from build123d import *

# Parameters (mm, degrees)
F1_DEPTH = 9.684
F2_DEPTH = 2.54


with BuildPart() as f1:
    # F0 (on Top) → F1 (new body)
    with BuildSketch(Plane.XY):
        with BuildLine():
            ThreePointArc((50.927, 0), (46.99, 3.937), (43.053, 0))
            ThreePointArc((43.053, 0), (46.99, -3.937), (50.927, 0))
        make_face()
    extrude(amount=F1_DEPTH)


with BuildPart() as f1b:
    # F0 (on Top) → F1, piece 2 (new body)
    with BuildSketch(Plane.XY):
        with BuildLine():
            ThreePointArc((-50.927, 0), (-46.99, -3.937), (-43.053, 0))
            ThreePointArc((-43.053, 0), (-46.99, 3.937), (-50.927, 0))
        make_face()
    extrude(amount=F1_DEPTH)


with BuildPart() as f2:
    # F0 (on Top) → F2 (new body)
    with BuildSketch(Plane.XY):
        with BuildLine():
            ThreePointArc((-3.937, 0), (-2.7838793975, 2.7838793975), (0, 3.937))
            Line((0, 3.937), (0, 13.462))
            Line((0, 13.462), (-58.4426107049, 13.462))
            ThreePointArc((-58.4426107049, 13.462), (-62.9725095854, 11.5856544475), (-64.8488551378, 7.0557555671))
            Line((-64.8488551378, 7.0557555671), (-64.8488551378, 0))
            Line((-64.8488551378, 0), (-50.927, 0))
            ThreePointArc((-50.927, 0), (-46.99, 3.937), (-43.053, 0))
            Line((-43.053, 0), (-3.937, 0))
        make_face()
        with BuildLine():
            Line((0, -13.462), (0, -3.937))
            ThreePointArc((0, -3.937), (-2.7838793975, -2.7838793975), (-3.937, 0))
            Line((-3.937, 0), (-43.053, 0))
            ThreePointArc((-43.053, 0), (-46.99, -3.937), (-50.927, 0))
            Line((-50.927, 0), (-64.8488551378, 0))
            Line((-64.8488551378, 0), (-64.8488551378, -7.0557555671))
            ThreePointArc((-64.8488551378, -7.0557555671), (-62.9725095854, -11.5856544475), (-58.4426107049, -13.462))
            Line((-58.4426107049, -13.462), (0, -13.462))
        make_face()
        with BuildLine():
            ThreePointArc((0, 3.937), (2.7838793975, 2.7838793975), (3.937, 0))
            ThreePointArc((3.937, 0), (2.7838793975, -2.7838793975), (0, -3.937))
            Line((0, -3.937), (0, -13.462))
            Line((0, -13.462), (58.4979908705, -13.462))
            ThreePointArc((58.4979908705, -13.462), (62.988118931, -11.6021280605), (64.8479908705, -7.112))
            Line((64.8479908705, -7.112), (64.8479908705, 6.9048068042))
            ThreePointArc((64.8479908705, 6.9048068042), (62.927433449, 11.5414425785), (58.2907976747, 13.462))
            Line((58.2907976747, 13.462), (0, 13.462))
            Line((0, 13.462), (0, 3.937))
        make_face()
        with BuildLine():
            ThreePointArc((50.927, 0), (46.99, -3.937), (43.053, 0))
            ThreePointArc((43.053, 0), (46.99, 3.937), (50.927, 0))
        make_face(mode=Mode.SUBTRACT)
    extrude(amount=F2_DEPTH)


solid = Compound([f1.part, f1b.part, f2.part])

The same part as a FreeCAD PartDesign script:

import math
import FreeCAD as App
import Part
import Sketcher

V = App.Vector
Q = App.Units.Quantity

doc = App.newDocument("Part")
body = doc.addObject("PartDesign::Body", "Body")

sketch1 = body.newObject("Sketcher::SketchObject", "Sketch")
sketch1.AttachmentSupport = (doc.getObject("XY_Plane"), [""])
sketch1.MapMode = "FlatFace"
sketch1.addGeometry(Part.Circle(V(47, 0, 0), V(0, 0, 1), 3.9), False)
sketch1.addConstraint([
    Sketcher.Constraint("PointOnObject", 0, 3, -1),
    Sketcher.Constraint("Diameter", 0, Q("0.31 in")),
    Sketcher.Constraint("DistanceX", -1, 1, 0, 3, Q("1.85 in")),
])
pad1 = body.newObject("PartDesign::Pad", "Pad")
pad1.Profile = sketch1
pad1.Length = 9.684
body2 = doc.addObject("PartDesign::Body", "Body001")

sketch2 = body2.newObject("Sketcher::SketchObject", "Sketch001")
sketch2.AttachmentSupport = (doc.getObject("XY_Plane001"), [""])
sketch2.MapMode = "FlatFace"
sketch2.addGeometry(Part.Circle(V(-47, 0, 0), V(0, 0, 1), 3.9), False)
sketch2.addConstraint([
    Sketcher.Constraint("PointOnObject", 0, 3, -1),
    Sketcher.Constraint("Diameter", 0, Q("0.31 in")),
    Sketcher.Constraint("DistanceX", 0, 3, -1, 1, Q("1.85 in")),
])
pad2 = body2.newObject("PartDesign::Pad", "Pad001")
pad2.Profile = sketch2
pad2.Length = 9.684
body3 = doc.addObject("PartDesign::Body", "Body002")

sketch3 = body3.newObject("Sketcher::SketchObject", "Sketch002")
sketch3.AttachmentSupport = (doc.getObject("XY_Plane002"), [""])
sketch3.MapMode = "FlatFace"
sketch3.addGeometry([
    Part.ArcOfCircle(Part.Circle(V(-58.4, 7.1, 0), V(0, 0, 1), 6.4), math.radians(90), math.radians(180)),
    Part.LineSegment(V(-64.8, 7.1, 0), V(-64.8, -7.1, 0)),
    Part.ArcOfCircle(Part.Circle(V(-58.4, -7.1, 0), V(0, 0, 1), 6.4), math.radians(180), math.radians(270)),
    Part.LineSegment(V(-58.4, -13.5, 0), V(58.5, -13.5, 0)),
    Part.ArcOfCircle(Part.Circle(V(58.5, -7.1, 0), V(0, 0, 1), 6.3), math.radians(-90), math.radians(0)),
    Part.LineSegment(V(64.8, -7.1, 0), V(64.8, 6.9, 0)),
    Part.ArcOfCircle(Part.Circle(V(58.3, 6.9, 0), V(0, 0, 1), 6.6), math.radians(0), math.radians(90)),
    Part.LineSegment(V(58.3, 13.5, 0), V(-58.4, 13.5, 0)),
    Part.Circle(V(-47, 0, 0), V(0, 0, 1), 3.9),
    Part.ArcOfCircle(Part.Circle(V(0, 0, 0), V(0, 0, 1), 3.9), math.radians(90), math.radians(180)),
    Part.ArcOfCircle(Part.Circle(V(0, 0, 0), V(0, 0, 1), 3.9), math.radians(0), math.radians(90)),
    Part.ArcOfCircle(Part.Circle(V(0, 0, 0), V(0, 0, 1), 3.9), math.radians(-90), math.radians(0)),
    Part.ArcOfCircle(Part.Circle(V(0, 0, 0), V(0, 0, 1), 3.9), math.radians(180), math.radians(270)),
    Part.Circle(V(47, 0, 0), V(0, 0, 1), 3.9),
], False)
sketch3.addConstraint([
    Sketcher.Constraint("Tangent", 0, 2, 1, 1),
    Sketcher.Constraint("Tangent", 1, 2, 2, 1),
    Sketcher.Constraint("Tangent", 2, 2, 3, 1),
    Sketcher.Constraint("Tangent", 3, 2, 4, 1),
    Sketcher.Constraint("Tangent", 4, 2, 5, 1),
    Sketcher.Constraint("Tangent", 5, 2, 6, 1),
    Sketcher.Constraint("Tangent", 6, 2, 7, 1),
    Sketcher.Constraint("Tangent", 7, 2, 0, 1),
    Sketcher.Constraint("Tangent", 9, 1, 10, 2),
    Sketcher.Constraint("Tangent", 10, 1, 11, 2),
    Sketcher.Constraint("Tangent", 11, 1, 12, 2),
    Sketcher.Constraint("Tangent", 12, 1, 9, 2),
    Sketcher.Constraint("Vertical", 1),
    Sketcher.Constraint("Horizontal", 3),
    Sketcher.Constraint("Vertical", 5),
    Sketcher.Constraint("Horizontal", 7),
    Sketcher.Constraint("Coincident", 9, 3, -1, 1),
    Sketcher.Constraint("Equal", 0, 2),
    Sketcher.Constraint("Equal", 8, 9),
    Sketcher.Constraint("Equal", 9, 10),
    Sketcher.Constraint("Equal", 12, 13),
    Sketcher.Constraint("Symmetric", 8, 3, 13, 3, -1, 1),
    Sketcher.Constraint("PointOnObject", 8, 3, -1),
    Sketcher.Constraint("PointOnObject", 9, 1, -2),
    Sketcher.Constraint("PointOnObject", 10, 1, -1),
    Sketcher.Constraint("PointOnObject", 11, 1, -2),
    Sketcher.Constraint("PointOnObject", 12, 1, -1),
    Sketcher.Constraint("Diameter", 8, Q("0.31 in")),
    Sketcher.Constraint("Radius", 4, Q("0.25 in")),
    Sketcher.Constraint("DistanceY", 4, 3, -1, 1, Q("0.28 in")),
    Sketcher.Constraint("DistanceX", 8, 3, -1, 1, Q("1.85 in")),
    Sketcher.Constraint("DistanceY", -1, 1, 6, 2, Q("0.53 in")),
    Sketcher.Constraint("DistanceX", 3, 1, 3, 2, 116.940602),
    Sketcher.Constraint("Radius", 0, 6.406244),
    Sketcher.Constraint("Radius", 6, 6.557193),
    Sketcher.Constraint("DistanceX", 0, 3, -1, 1, 58.442611),
])
pad3 = body3.newObject("PartDesign::Pad", "Pad002")
pad3.Profile = sketch3
pad3.Length = Q("0.1 in")

doc.recompute()
